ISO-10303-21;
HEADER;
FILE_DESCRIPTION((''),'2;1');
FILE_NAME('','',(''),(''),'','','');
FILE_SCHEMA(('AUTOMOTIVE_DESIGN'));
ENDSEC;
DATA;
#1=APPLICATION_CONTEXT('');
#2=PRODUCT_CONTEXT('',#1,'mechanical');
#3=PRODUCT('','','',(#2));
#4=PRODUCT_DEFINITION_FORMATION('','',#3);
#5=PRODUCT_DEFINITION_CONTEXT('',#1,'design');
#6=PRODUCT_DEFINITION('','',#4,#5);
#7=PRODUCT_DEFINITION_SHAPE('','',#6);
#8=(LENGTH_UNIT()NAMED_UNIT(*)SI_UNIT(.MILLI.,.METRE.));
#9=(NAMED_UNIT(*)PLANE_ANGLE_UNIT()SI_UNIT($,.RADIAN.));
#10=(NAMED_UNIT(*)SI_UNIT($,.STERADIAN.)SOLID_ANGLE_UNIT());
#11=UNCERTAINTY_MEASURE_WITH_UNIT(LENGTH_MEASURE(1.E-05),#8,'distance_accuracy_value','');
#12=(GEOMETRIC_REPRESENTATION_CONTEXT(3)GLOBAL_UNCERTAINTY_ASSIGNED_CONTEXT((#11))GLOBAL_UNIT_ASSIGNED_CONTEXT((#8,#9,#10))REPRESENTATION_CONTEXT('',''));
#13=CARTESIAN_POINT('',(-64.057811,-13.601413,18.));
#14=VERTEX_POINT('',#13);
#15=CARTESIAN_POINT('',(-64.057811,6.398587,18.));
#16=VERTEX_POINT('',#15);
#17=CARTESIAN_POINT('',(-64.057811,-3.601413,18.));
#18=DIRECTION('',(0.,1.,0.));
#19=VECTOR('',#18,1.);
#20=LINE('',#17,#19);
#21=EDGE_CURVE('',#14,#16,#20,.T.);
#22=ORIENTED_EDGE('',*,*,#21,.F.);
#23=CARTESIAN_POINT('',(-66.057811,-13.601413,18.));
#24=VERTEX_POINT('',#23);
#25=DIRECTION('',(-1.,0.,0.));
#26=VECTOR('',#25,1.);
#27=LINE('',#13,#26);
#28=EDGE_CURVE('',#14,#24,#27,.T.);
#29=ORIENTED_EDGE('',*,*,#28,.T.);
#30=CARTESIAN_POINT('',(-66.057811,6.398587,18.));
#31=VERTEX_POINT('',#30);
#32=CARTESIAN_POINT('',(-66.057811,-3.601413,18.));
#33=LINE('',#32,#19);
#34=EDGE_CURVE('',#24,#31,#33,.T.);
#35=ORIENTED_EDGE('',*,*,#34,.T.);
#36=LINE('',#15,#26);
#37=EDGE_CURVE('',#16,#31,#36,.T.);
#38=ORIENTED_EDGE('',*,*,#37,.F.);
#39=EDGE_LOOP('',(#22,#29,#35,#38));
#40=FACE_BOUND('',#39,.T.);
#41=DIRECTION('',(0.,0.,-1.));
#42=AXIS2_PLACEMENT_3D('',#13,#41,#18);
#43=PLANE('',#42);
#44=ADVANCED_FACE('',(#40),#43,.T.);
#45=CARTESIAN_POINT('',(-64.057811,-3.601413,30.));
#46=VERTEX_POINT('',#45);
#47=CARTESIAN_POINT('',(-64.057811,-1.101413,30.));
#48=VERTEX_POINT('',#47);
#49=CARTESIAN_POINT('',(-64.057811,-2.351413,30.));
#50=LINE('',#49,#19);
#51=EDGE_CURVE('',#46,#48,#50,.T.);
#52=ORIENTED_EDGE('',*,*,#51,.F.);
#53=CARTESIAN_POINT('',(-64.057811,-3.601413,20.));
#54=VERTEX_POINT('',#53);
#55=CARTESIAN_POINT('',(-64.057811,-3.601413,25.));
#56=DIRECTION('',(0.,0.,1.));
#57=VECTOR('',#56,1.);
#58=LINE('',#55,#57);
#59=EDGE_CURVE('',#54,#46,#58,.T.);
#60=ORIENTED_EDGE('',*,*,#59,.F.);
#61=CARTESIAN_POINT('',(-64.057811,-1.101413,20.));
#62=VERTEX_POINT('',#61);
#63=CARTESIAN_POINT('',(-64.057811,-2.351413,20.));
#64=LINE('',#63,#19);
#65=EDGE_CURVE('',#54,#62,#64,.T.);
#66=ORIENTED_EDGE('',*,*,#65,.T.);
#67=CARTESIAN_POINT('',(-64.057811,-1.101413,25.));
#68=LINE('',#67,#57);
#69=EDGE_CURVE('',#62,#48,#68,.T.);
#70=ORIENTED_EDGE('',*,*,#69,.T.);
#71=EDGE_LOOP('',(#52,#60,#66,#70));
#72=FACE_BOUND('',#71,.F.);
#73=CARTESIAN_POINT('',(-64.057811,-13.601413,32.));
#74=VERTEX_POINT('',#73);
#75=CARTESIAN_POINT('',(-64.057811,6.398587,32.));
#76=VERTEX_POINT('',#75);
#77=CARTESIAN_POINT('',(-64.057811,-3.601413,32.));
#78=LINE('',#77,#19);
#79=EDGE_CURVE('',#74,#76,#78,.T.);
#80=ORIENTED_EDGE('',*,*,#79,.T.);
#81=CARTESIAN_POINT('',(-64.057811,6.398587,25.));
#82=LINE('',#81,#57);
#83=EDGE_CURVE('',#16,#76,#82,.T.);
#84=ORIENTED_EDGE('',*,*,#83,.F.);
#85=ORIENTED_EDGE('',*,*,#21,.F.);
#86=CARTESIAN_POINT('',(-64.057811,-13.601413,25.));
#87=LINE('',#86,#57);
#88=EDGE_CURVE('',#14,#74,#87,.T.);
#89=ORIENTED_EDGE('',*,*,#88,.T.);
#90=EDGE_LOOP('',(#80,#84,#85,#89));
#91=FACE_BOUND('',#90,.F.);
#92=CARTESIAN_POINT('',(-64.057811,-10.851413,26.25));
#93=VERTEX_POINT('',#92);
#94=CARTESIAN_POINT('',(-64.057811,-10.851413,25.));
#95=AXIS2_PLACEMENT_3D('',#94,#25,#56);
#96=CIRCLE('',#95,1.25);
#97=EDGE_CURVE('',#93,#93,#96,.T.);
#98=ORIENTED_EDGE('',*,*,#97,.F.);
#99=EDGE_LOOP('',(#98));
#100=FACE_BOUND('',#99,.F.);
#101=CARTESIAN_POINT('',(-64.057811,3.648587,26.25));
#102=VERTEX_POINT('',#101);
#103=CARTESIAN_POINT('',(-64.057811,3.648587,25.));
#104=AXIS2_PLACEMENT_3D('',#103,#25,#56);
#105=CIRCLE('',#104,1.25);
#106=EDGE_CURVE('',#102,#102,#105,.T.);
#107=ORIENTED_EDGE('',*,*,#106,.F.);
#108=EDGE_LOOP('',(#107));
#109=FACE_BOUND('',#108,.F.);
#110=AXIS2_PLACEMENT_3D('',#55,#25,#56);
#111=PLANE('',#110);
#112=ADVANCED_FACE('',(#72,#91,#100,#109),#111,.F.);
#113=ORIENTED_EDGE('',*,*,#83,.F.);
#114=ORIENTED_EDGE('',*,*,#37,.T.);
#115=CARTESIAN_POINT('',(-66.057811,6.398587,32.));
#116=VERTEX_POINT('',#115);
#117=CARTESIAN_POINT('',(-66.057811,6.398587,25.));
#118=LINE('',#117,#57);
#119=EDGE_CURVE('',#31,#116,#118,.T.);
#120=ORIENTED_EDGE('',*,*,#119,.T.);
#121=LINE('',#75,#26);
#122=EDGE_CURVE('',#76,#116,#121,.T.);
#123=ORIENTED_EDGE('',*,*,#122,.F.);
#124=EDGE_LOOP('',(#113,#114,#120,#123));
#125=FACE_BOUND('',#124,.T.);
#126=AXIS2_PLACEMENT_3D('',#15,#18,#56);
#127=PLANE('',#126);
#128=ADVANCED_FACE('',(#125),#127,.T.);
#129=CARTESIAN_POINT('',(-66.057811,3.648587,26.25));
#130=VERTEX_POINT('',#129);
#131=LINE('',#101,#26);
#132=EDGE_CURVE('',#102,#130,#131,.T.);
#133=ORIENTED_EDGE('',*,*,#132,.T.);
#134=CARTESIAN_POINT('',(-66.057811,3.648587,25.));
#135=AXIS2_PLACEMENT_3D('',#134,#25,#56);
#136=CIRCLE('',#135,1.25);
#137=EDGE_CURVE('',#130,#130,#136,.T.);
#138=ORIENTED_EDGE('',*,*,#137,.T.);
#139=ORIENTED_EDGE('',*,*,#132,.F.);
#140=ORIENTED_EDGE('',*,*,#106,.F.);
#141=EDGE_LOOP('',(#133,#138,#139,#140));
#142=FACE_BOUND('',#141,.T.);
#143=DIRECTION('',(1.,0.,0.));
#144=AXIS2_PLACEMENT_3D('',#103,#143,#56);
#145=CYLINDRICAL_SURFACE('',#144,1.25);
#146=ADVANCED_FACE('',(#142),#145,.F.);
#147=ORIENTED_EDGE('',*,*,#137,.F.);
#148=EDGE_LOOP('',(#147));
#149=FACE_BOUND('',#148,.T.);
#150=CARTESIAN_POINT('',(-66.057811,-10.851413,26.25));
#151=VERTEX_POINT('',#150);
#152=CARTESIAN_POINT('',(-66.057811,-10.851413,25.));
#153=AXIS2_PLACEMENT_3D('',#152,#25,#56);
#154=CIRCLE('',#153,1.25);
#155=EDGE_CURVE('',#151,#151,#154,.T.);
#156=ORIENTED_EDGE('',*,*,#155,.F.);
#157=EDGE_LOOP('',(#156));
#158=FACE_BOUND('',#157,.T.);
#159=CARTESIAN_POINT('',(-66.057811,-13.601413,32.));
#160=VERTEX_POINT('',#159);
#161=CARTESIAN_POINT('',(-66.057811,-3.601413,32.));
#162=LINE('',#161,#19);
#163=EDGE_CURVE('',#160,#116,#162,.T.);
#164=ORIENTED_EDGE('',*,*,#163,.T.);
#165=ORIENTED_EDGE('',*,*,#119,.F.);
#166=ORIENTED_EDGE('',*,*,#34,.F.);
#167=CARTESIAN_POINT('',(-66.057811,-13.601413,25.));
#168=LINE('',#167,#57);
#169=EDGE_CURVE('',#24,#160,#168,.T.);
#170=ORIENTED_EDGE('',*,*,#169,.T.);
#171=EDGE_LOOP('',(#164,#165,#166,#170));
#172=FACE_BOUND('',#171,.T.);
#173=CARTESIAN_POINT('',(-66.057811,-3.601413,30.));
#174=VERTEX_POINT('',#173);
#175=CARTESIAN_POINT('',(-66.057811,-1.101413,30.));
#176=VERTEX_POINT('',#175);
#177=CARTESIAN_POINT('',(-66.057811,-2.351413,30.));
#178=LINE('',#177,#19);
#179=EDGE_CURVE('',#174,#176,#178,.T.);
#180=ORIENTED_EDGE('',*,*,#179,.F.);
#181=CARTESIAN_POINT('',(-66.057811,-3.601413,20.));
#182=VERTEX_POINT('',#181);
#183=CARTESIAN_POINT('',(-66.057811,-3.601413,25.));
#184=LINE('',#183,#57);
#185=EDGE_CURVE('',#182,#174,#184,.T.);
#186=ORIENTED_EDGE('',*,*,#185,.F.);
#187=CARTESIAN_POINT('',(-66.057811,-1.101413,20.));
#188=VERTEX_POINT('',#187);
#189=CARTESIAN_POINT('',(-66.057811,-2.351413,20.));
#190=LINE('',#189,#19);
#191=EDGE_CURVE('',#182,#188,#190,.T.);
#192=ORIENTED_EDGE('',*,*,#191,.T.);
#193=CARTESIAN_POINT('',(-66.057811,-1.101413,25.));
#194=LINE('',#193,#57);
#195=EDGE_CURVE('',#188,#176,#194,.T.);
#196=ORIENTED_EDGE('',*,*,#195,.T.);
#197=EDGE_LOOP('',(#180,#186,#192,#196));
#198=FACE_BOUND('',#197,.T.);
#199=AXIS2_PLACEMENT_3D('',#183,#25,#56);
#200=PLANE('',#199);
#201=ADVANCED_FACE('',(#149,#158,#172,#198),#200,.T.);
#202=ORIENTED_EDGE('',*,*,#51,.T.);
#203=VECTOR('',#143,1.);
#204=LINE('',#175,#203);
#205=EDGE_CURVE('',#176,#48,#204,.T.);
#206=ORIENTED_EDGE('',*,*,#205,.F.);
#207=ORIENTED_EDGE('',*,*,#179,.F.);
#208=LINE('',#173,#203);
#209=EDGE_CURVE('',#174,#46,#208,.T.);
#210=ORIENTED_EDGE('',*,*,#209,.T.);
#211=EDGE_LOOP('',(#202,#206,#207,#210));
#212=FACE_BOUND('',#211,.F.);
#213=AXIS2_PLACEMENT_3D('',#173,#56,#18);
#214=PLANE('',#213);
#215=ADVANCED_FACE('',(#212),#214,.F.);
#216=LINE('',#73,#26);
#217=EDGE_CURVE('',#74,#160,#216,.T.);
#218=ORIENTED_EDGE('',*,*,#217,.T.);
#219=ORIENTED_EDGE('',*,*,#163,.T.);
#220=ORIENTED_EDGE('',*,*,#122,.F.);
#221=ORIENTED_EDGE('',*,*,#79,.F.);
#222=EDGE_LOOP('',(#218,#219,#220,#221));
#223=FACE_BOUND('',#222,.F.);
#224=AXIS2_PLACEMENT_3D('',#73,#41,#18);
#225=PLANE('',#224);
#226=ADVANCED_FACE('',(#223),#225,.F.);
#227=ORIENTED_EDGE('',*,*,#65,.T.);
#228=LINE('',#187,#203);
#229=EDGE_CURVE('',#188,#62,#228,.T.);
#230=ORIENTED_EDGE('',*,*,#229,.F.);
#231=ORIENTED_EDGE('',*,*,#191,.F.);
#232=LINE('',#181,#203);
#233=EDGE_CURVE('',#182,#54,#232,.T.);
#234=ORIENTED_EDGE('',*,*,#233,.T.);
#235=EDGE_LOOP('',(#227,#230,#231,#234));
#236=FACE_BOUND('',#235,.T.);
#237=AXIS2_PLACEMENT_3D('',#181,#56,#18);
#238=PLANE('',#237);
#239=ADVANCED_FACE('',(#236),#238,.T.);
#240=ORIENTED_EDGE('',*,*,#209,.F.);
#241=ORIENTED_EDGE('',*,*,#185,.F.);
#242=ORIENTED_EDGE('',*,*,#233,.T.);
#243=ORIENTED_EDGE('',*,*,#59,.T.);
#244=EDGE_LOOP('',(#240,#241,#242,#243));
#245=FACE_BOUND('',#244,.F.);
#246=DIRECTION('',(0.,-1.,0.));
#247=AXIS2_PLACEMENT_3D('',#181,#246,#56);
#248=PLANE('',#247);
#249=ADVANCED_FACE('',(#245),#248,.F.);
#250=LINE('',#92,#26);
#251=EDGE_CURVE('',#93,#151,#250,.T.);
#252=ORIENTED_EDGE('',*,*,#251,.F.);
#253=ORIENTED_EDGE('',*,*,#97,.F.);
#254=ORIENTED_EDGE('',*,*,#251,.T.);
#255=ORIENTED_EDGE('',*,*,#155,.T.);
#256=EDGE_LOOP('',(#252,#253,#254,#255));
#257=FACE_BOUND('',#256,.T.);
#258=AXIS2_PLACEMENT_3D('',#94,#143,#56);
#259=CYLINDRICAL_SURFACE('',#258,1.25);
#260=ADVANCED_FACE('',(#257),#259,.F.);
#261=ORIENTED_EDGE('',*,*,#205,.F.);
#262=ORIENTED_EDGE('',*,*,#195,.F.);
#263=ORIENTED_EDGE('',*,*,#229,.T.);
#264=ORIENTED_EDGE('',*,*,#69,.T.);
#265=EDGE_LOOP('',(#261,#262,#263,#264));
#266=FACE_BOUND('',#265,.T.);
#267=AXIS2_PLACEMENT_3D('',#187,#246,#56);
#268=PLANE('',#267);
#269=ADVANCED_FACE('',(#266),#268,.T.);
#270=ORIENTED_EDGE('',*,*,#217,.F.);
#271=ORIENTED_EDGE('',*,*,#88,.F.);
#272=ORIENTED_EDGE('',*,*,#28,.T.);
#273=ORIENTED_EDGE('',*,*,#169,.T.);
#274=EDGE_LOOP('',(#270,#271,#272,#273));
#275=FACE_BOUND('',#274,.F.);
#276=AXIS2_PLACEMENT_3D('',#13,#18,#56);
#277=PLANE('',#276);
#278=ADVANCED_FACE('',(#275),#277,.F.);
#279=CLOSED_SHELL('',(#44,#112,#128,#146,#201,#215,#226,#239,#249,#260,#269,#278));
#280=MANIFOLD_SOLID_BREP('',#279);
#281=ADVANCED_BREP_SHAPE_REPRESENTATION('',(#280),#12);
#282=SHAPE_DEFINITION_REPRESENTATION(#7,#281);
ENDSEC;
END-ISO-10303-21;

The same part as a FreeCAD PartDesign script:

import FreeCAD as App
import Part
import Sketcher

V = App.Vector


def add_polygon(sketch, points):
    """Adds a closed chain of lines whose ends are joined by coincident constraints."""
    first, n = sketch.GeometryCount, len(points)
    for a, b in zip(points, points[1:] + points[:1]):
        sketch.addGeometry(Part.LineSegment(App.Vector(*a, 0), App.Vector(*b, 0)), False)
    for i in range(n):
        sketch.addConstraint(Sketcher.Constraint("Coincident", first + i, 2, first + (i + 1) % n, 1))

doc = App.newDocument("Part")
body = doc.addObject("PartDesign::Body", "Body")

sketch1 = body.newObject("Sketcher::SketchObject", "Sketch")
sketch1.AttachmentSupport = (doc.getObject("YZ_Plane"), [""])
sketch1.MapMode = "FlatFace"
sketch1.AttachmentOffset = App.Placement(V(0, 0, -64.057811), App.Rotation())
add_polygon(sketch1, [(6.4, 18), (-13.6, 18), (-13.6, 32), (6.4, 32)])
sketch1.addGeometry(Part.Circle(V(-10.9, 25, 0), V(0, 0, 1), 1.2), False)
sketch1.addGeometry(Part.Circle(V(3.6, 25, 0), V(0, 0, 1), 1.2), False)
sketch1.addConstraint(Sketcher.Constraint("Horizontal", 0))
sketch1.addConstraint(Sketcher.Constraint("Vertical", 1))
sketch1.addConstraint(Sketcher.Constraint("Horizontal", 2))
sketch1.addConstraint(Sketcher.Constraint("Vertical", 3))
sketch1.addConstraint(Sketcher.Constraint("Equal", 4, 5))
sketch1.addConstraint(Sketcher.Constraint("Horizontal", 4, 3, 5, 3))
sketch1.addConstraint(Sketcher.Constraint("Diameter", 4, 2.5))
sketch1.addConstraint(Sketcher.Constraint("DistanceX", 0, 2, 0, 1, 20.0))
sketch1.addConstraint(Sketcher.Constraint("DistanceY", 1, 1, 1, 2, 14.0))
sketch1.addConstraint(Sketcher.Constraint("DistanceY", -1, 1, 4, 3, 25.0))
sketch1.addConstraint(Sketcher.Constraint("DistanceY", -1, 1, 0, 2, 18.0))
sketch1.addConstraint(Sketcher.Constraint("DistanceX", 4, 3, 5, 3, 14.5))
sketch1.addConstraint(Sketcher.Constraint("DistanceX", 0, 2, 4, 3, 2.75))
sketch1.addConstraint(Sketcher.Constraint("DistanceX", 4, 3, -1, 1, 10.851413))
pad1 = body.newObject("PartDesign::Pad", "Pad")
pad1.Profile = sketch1
pad1.Length = 2
pad1.Reversed = True

sketch2 = body.newObject("Sketcher::SketchObject", "Sketch001")
sketch2.AttachmentSupport = (doc.getObject("YZ_Plane"), [""])
sketch2.MapMode = "FlatFace"
sketch2.AttachmentOffset = App.Placement(V(0, 0, -66.057811), App.Rotation())
add_polygon(sketch2, [(-1.1, 20), (-3.6, 20), (-3.6, 30), (-1.1, 30)])
sketch2.addConstraint(Sketcher.Constraint("Horizontal", 0))
sketch2.addConstraint(Sketcher.Constraint("Vertical", 1))
sketch2.addConstraint(Sketcher.Constraint("Horizontal", 2))
sketch2.addConstraint(Sketcher.Constraint("Vertical", 3))
sketch2.addConstraint(Sketcher.Constraint("DistanceY", 1, 1, 1, 2, 10.0))
sketch2.addConstraint(Sketcher.Constraint("DistanceX", 0, 2, 0, 1, 2.5))
sketch2.addConstraint(Sketcher.Constraint("DistanceY", -1, 1, 0, 2, 20.0))
sketch2.addConstraint(Sketcher.Constraint("DistanceX", 0, 2, -1, 1, 3.601413))
pocket1 = body.newObject("PartDesign::Pocket", "Pocket")
pocket1.Profile = sketch2
pocket1.Length = 2
pocket1.Reversed = True

doc.recompute()
